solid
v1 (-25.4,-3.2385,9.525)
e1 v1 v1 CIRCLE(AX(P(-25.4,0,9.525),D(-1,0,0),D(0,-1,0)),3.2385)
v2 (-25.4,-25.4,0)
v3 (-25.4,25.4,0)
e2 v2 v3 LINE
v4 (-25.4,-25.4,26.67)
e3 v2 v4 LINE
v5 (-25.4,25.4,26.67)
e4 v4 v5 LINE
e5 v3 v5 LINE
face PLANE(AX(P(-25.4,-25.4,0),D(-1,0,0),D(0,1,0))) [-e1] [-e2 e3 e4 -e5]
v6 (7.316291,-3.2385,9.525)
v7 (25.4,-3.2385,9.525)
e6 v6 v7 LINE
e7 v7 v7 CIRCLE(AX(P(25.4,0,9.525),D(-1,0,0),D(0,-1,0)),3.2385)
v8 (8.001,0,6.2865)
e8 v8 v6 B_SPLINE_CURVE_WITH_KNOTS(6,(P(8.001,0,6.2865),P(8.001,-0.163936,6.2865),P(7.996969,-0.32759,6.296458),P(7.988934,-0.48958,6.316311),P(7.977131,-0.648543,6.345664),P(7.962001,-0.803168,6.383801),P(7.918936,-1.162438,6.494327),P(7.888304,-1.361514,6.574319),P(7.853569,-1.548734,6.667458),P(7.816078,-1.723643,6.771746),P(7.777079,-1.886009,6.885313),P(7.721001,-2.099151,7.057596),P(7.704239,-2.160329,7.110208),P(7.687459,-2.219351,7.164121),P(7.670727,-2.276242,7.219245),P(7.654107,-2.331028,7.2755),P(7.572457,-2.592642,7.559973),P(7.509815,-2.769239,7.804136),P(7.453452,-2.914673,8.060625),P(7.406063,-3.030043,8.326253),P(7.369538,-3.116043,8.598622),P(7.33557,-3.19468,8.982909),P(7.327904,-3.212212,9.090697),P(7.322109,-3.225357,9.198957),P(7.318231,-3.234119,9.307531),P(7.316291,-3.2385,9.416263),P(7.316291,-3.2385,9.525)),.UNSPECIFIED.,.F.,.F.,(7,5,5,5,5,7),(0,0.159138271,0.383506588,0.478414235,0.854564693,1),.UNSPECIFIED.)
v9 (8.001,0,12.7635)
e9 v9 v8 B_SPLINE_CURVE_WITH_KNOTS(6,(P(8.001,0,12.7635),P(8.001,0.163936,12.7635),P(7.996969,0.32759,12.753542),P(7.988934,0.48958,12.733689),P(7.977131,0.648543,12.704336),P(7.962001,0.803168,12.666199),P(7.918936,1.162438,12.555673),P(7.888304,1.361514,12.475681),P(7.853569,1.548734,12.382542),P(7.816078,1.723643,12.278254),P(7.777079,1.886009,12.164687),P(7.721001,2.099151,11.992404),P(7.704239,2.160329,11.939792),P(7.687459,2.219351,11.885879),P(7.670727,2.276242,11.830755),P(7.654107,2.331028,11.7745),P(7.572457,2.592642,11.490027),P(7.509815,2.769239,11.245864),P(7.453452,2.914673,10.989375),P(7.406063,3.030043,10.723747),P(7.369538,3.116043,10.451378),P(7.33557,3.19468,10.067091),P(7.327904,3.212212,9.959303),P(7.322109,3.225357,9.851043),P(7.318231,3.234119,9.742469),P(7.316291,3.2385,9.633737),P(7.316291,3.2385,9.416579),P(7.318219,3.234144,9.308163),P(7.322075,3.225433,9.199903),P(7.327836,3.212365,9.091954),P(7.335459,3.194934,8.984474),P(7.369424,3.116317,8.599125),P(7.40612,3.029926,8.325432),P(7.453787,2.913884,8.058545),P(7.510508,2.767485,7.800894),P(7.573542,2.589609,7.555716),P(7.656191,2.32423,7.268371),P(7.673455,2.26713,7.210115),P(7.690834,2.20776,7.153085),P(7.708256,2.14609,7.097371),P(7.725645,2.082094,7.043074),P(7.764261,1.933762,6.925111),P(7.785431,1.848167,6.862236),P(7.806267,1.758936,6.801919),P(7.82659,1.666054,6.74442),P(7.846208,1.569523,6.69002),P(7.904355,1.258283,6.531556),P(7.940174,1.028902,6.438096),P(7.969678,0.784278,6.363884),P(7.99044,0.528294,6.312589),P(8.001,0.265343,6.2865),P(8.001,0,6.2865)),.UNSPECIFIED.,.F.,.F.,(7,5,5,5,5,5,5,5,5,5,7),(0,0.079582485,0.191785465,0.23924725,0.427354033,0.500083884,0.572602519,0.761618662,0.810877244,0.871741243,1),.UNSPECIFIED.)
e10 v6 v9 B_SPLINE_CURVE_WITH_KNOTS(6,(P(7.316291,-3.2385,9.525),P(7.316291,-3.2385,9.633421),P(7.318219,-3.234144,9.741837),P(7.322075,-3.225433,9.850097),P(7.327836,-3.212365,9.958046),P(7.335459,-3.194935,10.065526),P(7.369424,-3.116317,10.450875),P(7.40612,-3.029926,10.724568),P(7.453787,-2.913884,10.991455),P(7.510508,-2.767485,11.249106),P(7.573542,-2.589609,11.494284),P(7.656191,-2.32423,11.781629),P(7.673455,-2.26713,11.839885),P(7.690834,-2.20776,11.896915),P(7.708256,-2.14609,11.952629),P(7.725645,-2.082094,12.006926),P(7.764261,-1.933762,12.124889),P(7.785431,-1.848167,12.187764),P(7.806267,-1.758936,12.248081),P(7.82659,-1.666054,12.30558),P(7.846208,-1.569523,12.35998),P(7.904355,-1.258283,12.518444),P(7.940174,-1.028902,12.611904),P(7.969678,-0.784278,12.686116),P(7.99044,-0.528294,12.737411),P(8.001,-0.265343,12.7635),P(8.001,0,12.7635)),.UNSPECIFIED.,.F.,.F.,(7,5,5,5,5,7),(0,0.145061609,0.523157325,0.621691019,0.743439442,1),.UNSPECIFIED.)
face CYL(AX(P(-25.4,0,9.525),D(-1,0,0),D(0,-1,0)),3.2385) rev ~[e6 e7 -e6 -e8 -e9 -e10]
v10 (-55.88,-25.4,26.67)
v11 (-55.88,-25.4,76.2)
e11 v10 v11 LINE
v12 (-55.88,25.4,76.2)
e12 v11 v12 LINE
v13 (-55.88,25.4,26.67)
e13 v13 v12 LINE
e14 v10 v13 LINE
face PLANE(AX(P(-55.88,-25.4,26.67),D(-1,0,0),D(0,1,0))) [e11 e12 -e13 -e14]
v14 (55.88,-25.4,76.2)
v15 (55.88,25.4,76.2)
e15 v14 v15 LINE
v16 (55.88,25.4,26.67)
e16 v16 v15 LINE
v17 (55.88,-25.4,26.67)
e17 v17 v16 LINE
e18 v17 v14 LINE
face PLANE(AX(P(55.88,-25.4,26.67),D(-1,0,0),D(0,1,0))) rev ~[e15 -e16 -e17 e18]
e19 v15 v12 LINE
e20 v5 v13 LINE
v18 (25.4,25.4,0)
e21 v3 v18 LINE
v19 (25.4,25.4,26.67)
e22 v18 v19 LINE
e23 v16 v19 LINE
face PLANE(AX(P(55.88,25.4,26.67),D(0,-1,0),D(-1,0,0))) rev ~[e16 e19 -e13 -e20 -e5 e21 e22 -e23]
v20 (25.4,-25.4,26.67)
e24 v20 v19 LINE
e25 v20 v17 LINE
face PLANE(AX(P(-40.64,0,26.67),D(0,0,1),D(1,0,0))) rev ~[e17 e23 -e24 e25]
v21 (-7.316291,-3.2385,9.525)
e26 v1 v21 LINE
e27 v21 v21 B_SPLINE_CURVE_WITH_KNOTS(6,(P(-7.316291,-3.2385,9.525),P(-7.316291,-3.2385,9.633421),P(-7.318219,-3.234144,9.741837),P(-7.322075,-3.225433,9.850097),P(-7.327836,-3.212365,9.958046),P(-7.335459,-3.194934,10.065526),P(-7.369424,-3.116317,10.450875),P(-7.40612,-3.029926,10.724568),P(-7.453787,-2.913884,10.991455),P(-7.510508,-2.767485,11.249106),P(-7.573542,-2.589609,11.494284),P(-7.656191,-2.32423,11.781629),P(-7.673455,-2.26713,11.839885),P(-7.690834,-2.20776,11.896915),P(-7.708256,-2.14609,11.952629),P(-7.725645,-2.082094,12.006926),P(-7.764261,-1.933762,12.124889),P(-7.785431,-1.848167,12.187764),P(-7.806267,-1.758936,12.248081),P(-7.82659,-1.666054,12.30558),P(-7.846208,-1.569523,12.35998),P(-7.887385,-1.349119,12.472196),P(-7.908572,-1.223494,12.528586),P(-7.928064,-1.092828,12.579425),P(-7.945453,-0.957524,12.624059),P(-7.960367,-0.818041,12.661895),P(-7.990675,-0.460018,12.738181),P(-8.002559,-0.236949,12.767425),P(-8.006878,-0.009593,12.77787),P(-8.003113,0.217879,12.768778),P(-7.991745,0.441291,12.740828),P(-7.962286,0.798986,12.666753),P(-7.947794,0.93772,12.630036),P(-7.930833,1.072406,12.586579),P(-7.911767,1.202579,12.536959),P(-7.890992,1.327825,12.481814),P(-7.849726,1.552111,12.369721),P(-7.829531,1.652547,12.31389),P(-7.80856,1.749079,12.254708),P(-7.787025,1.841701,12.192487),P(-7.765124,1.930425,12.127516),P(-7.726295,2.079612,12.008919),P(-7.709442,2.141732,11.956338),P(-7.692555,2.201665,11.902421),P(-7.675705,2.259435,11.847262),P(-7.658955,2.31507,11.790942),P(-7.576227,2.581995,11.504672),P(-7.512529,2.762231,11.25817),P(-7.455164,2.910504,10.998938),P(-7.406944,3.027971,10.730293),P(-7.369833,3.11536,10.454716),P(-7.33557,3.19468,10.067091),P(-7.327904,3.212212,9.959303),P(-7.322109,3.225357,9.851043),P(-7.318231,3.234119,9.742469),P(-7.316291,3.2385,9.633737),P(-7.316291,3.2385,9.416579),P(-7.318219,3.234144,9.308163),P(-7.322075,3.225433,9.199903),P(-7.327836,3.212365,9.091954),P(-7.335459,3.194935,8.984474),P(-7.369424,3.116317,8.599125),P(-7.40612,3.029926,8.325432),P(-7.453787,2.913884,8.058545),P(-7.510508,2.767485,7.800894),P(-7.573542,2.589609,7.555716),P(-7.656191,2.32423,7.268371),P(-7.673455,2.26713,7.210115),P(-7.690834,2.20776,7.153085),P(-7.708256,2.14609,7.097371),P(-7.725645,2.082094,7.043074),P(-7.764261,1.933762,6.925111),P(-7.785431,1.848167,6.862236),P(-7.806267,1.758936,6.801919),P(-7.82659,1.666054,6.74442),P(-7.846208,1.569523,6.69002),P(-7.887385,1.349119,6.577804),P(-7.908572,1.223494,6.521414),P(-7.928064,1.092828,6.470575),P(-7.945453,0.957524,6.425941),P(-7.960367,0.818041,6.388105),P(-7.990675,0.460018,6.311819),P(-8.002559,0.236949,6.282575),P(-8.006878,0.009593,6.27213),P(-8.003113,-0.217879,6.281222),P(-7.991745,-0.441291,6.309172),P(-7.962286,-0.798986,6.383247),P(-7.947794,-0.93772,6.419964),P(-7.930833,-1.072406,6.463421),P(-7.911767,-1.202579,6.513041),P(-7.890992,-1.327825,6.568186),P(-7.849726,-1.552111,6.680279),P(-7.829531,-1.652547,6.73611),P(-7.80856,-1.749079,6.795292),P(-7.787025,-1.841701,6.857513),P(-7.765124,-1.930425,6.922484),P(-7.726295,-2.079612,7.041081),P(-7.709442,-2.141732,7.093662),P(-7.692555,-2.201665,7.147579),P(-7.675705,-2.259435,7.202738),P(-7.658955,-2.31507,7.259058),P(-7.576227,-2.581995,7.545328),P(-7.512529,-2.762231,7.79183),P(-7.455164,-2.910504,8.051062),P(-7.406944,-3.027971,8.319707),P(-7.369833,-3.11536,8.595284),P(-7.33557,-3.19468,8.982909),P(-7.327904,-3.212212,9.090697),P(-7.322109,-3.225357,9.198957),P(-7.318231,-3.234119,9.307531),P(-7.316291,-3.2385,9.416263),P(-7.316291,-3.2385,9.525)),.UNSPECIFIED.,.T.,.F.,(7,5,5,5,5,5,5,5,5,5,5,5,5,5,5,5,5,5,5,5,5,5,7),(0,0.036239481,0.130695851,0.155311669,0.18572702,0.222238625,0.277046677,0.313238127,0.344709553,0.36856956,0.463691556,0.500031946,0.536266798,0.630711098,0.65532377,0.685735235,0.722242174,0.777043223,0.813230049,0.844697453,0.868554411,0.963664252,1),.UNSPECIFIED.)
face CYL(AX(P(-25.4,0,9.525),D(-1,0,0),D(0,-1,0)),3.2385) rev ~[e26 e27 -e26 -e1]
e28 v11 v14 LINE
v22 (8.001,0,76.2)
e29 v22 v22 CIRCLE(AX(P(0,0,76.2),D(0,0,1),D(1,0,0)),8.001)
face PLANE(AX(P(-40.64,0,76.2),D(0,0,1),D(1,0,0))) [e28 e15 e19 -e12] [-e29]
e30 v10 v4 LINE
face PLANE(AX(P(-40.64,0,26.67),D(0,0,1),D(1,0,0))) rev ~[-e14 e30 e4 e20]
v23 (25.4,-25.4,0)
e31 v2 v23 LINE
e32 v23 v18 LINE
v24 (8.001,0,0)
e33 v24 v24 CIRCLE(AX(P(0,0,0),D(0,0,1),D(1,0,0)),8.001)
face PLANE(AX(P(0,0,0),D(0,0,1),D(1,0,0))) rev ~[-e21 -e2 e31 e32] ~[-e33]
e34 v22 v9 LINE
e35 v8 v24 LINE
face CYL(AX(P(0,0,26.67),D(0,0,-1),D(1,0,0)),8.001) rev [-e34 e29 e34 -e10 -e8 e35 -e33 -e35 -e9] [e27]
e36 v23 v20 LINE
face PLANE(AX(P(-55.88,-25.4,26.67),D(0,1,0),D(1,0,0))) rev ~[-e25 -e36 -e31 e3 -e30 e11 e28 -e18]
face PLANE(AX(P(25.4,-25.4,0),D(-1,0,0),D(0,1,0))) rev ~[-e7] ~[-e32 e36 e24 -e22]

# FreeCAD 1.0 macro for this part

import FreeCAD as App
import Part
import Sketcher
Q = App.Units.Quantity


def add_polygon(sketch, points):
    """Adds a closed chain of lines whose ends are joined by coincident constraints."""
    first, n = sketch.GeometryCount, len(points)
    for a, b in zip(points, points[1:] + points[:1]):
        sketch.addGeometry(Part.LineSegment(App.Vector(*a, 0), App.Vector(*b, 0)), False)
    for i in range(n):
        sketch.addConstraint(Sketcher.Constraint("Coincident", first + i, 2, first + (i + 1) % n, 1))

doc = App.newDocument("Part")
body = doc.addObject("PartDesign::Body", "Body")

# Sketch on XY plane
sketch1 = body.newObject("Sketcher::SketchObject", "Sketch")
sketch1.AttachmentSupport = (doc.getObject("XY_Plane"), [""])
sketch1.MapMode = "FlatFace"
add_polygon(sketch1, [(-25, 25), (-25, -25), (25, -25), (25, 25)])  # lines 0-3
sketch1.addGeometry(Part.Circle(App.Vector(0, 0, 0), App.Vector(0, 0, 1), 8), False)  # 4
sketch1.addConstraint(Sketcher.Constraint("Vertical", 0))
sketch1.addConstraint(Sketcher.Constraint("Horizontal", 1))
sketch1.addConstraint(Sketcher.Constraint("Vertical", 2))
sketch1.addConstraint(Sketcher.Constraint("Horizontal", 3))
sketch1.addConstraint(Sketcher.Constraint("Coincident", 4, 3, -1, 1))
sketch1.addConstraint(Sketcher.Constraint("Symmetric", 0, 2, 2, 2, -1, 1))
sketch1.addConstraint(Sketcher.Constraint("Equal", 3, 0))
sketch1.addConstraint(Sketcher.Constraint("Diameter", 4, Q("0.63 in")))
sketch1.addConstraint(Sketcher.Constraint("DistanceX", 1, 1, 1, 2, Q("2 in")))
pad1 = body.newObject("PartDesign::Pad", "Pad")
pad1.Profile = sketch1
pad1.Length = Q("1.05 in")

# Sketch on XY plane
sketch2 = body.newObject("Sketcher::SketchObject", "Sketch001")
sketch2.AttachmentSupport = (doc.getObject("XY_Plane"), [""])
sketch2.MapMode = "FlatFace"
sketch2.AttachmentOffset = App.Placement(App.Vector(0, 0, 1.05 * 25.4), App.Rotation())
add_polygon(sketch2, [(-56, 25), (-56, -25), (56, -25), (56, 25)])  # lines 0-3
sketch2.addGeometry(Part.Circle(App.Vector(0, 0, 0), App.Vector(0, 0, 1), 8), False)  # 4
sketch2.addConstraint(Sketcher.Constraint("Vertical", 0))
sketch2.addConstraint(Sketcher.Constraint("Horizontal", 1))
sketch2.addConstraint(Sketcher.Constraint("Vertical", 2))
sketch2.addConstraint(Sketcher.Constraint("Horizontal", 3))
sketch2.addConstraint(Sketcher.Constraint("Coincident", 4, 3, -1, 1))
sketch2.addConstraint(Sketcher.Constraint("Symmetric", 0, 2, 2, 2, -1, 1))
sketch2.addConstraint(Sketcher.Constraint("Diameter", 4, Q("0.63 in")))
sketch2.addConstraint(Sketcher.Constraint("DistanceY", 0, 2, 0, 1, Q("2 in")))
sketch2.addConstraint(Sketcher.Constraint("DistanceX", 1, 1, 1, 2, Q("4.4 in")))
pad2 = body.newObject("PartDesign::Pad", "Pad001")
pad2.Profile = sketch2
pad2.Length = Q("1.95 in")

# Sketch on YZ plane
sketch3 = body.newObject("Sketcher::SketchObject", "Sketch002")
sketch3.AttachmentSupport = (doc.getObject("YZ_Plane"), [""])
sketch3.MapMode = "FlatFace"
sketch3.AttachmentOffset = App.Placement(App.Vector(0, 0, -1 * 25.4), App.Rotation())
sketch3.addGeometry(Part.Circle(App.Vector(0, 9.5, 0), App.Vector(0, 0, 1), 3.2), False)
sketch3.addConstraint(Sketcher.Constraint("PointOnObject", 0, 3, -2))
sketch3.addConstraint(Sketcher.Constraint("Diameter", 0, Q("0.255 in")))
sketch3.addConstraint(Sketcher.Constraint("DistanceY", -1, 1, 0, 3, Q("0.375 in")))
pocket1 = body.newObject("PartDesign::Pocket", "Pocket")
pocket1.Profile = sketch3
pocket1.Type = "ThroughAll"
pocket1.Reversed = True

doc.recompute()
